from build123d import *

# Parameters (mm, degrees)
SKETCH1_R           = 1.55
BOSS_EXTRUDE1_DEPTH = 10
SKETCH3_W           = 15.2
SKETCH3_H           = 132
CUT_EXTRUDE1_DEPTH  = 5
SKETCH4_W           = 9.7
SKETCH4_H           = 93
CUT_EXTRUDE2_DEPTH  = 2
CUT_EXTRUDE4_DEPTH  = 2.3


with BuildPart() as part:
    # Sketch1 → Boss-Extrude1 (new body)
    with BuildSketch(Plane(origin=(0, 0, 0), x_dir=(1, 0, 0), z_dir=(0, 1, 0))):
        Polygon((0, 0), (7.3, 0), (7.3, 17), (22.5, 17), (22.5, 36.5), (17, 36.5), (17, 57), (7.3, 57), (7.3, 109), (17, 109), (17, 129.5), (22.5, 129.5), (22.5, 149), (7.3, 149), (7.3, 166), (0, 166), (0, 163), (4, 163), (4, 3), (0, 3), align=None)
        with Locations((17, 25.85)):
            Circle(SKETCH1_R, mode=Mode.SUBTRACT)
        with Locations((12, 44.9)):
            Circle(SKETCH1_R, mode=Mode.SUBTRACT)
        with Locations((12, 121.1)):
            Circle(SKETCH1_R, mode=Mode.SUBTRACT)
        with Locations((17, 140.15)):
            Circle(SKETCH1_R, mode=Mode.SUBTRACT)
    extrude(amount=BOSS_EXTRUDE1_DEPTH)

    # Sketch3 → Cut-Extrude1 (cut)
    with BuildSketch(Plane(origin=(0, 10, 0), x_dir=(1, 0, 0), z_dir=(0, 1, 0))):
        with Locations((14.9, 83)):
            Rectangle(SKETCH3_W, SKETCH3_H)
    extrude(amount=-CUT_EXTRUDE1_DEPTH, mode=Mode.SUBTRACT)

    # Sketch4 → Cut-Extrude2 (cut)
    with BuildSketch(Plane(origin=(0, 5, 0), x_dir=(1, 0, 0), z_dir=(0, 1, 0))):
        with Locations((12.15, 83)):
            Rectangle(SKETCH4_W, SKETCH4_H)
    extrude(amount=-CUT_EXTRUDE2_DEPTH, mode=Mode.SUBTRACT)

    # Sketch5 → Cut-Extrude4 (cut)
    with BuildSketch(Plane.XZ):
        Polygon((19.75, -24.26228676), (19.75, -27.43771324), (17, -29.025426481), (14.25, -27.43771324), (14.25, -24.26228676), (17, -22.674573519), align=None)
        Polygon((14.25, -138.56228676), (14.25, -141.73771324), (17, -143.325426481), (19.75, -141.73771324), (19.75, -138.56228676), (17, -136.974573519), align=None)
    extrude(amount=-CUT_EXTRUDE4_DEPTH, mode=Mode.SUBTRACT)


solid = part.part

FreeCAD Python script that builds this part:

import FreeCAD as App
import Part
import Sketcher
from FreeCAD import Vector
Q = App.Units.Quantity

doc = App.newDocument("Part")
body = doc.addObject("PartDesign::Body", "Body")

# Sketch on XZ plane
sketch1 = doc.addObject("Sketcher::SketchObject", "Sketch")
body.addObject(sketch1)
sketch1.AttachmentSupport = (doc.XZ_Plane, [""])
sketch1.MapMode = "FlatFace"
sketch1.addGeometry([
    Part.LineSegment(Vector(0, 0, 0), Vector(7.3, 0, 0)),  # 0
    Part.LineSegment(Vector(7.3, 0, 0), Vector(7.3, -17, 0)),  # 1
    Part.LineSegment(Vector(7.3, -17, 0), Vector(22.5, -17, 0)),  # 2
    Part.LineSegment(Vector(22.5, -17, 0), Vector(22.5, -36.5, 0)),  # 3
    Part.LineSegment(Vector(22.5, -36.5, 0), Vector(17, -36.5, 0)),  # 4
    Part.LineSegment(Vector(17, -36.5, 0), Vector(17, -57, 0)),  # 5
    Part.LineSegment(Vector(17, -57, 0), Vector(7.3, -57, 0)),  # 6
    Part.LineSegment(Vector(7.3, -57, 0), Vector(7.3, -109, 0)),  # 7
    Part.LineSegment(Vector(7.3, -109, 0), Vector(17, -109, 0)),  # 8
    Part.LineSegment(Vector(17, -109, 0), Vector(17, -129.5, 0)),  # 9
    Part.LineSegment(Vector(17, -129.5, 0), Vector(22.5, -129.5, 0)),  # 10
    Part.LineSegment(Vector(22.5, -129.5, 0), Vector(22.5, -149, 0)),  # 11
    Part.LineSegment(Vector(22.5, -149, 0), Vector(7.3, -149, 0)),  # 12
    Part.LineSegment(Vector(7.3, -149, 0), Vector(7.3, -166, 0)),  # 13
    Part.LineSegment(Vector(7.3, -166, 0), Vector(0, -166, 0)),  # 14
    Part.LineSegment(Vector(0, -166, 0), Vector(0, -163, 0)),  # 15
    Part.LineSegment(Vector(0, -163, 0), Vector(4, -163, 0)),  # 16
    Part.LineSegment(Vector(4, -163, 0), Vector(4, -3, 0)),  # 17
    Part.LineSegment(Vector(4, -3, 0), Vector(0, -3, 0)),  # 18
    Part.LineSegment(Vector(0, -3, 0), Vector(0, 0, 0)),  # 19
    Part.Circle(Vector(12, -44.9, 0), Vector(0, 0, 1), 1.55),  # 20
    Part.Circle(Vector(17, -25.85, 0), Vector(0, 0, 1), 1.55),  # 21
    Part.Circle(Vector(12, -121.1, 0), Vector(0, 0, 1), 1.55),  # 22
    Part.Circle(Vector(17, -140.15, 0), Vector(0, 0, 1), 1.55),  # 23
], False)
sketch1.addConstraint([
    Sketcher.Constraint("Coincident", 0, 2, 1, 1),
    Sketcher.Constraint("Coincident", 1, 2, 2, 1),
    Sketcher.Constraint("Coincident", 2, 2, 3, 1),
    Sketcher.Constraint("Coincident", 3, 2, 4, 1),
    Sketcher.Constraint("Coincident", 4, 2, 5, 1),
    Sketcher.Constraint("Coincident", 5, 2, 6, 1),
    Sketcher.Constraint("Coincident", 6, 2, 7, 1),
    Sketcher.Constraint("Coincident", 7, 2, 8, 1),
    Sketcher.Constraint("Coincident", 8, 2, 9, 1),
    Sketcher.Constraint("Coincident", 9, 2, 10, 1),
    Sketcher.Constraint("Coincident", 10, 2, 11, 1),
    Sketcher.Constraint("Coincident", 11, 2, 12, 1),
    Sketcher.Constraint("Coincident", 12, 2, 13, 1),
    Sketcher.Constraint("Coincident", 13, 2, 14, 1),
    Sketcher.Constraint("Coincident", 14, 2, 15, 1),
    Sketcher.Constraint("Coincident", 15, 2, 16, 1),
    Sketcher.Constraint("Coincident", 16, 2, 17, 1),
    Sketcher.Constraint("Coincident", 17, 2, 18, 1),
    Sketcher.Constraint("Coincident", 18, 2, 19, 1),
    Sketcher.Constraint("Coincident", 19, 2, 0, 1),
    Sketcher.Constraint("Horizontal", 0),
    Sketcher.Constraint("Vertical", 1),
    Sketcher.Constraint("Horizontal", 2),
    Sketcher.Constraint("Vertical", 3),
    Sketcher.Constraint("Horizontal", 4),
    Sketcher.Constraint("Vertical", 5),
    Sketcher.Constraint("Horizontal", 6),
    Sketcher.Constraint("Vertical", 7),
    Sketcher.Constraint("Horizontal", 8),
    Sketcher.Constraint("Vertical", 9),
    Sketcher.Constraint("Horizontal", 10),
    Sketcher.Constraint("Vertical", 11),
    Sketcher.Constraint("Horizontal", 12),
    Sketcher.Constraint("Vertical", 13),
    Sketcher.Constraint("Horizontal", 14),
    Sketcher.Constraint("Vertical", 15),
    Sketcher.Constraint("Horizontal", 16),
    Sketcher.Constraint("Vertical", 17),
    Sketcher.Constraint("Horizontal", 18),
    Sketcher.Constraint("Vertical", 19),
    Sketcher.Constraint("Coincident", 19, 2, -1, 1),
    Sketcher.Constraint("Equal", 20, 21),
    Sketcher.Constraint("Equal", 21, 22),
    Sketcher.Constraint("Equal", 22, 23),
    Sketcher.Constraint("PointOnObject", 14, 2, -2),
    Sketcher.Constraint("Vertical", 20, 3, 22, 3),
    Sketcher.Constraint("Vertical", 21, 3, 23, 3),
    Sketcher.Constraint("Vertical", 23, 3, 4, 2),
    Sketcher.Constraint("Vertical", 1, 2, 6, 2),
    Sketcher.Constraint("Vertical", 5, 2, 8, 2),
    Sketcher.Constraint("Vertical", 3, 2, 10, 2),
    Sketcher.Constraint("Vertical", 7, 2, 12, 2),
    Sketcher.Constraint("Equal", 5, 9),
    Sketcher.Constraint("Equal", 3, 11),
    Sketcher.Constraint("Equal", 1, 13),
    Sketcher.Constraint("Equal", 15, 19),
    Sketcher.Constraint("Diameter", 20, Q("3.1 mm")),
    Sketcher.Constraint("DistanceX", 16, 1, 16, 2, Q("4 mm")),
    Sketcher.Constraint("DistanceY", 1, 2, 1, 1, Q("17 mm")),
    Sketcher.Constraint("DistanceY", 7, 2, 7, 1, Q("52 mm")),
    Sketcher.Constraint("DistanceY", 15, 1, 15, 2, Q("3 mm")),
    Sketcher.Constraint("DistanceY", 17, 1, 17, 2, Q("160 mm")),
    Sketcher.Constraint("DistanceX", 0, 1, 0, 2, Q("7.3 mm")),
    Sketcher.Constraint("DistanceX", 2, 1, 2, 2, Q("15.2 mm")),
    Sketcher.Constraint("DistanceX", 4, 2, 4, 1, Q("5.5 mm")),
    Sketcher.Constraint("DistanceY", 3, 2, 3, 1, Q("19.5 mm")),
    Sketcher.Constraint("DistanceX", -1, 1, 20, 3, Q("12 mm")),
    Sketcher.Constraint("DistanceY", 20, 3, -1, 1, Q("44.9 mm")),
    Sketcher.Constraint("DistanceY", 22, 3, -1, 1, Q("121.1 mm")),
    Sketcher.Constraint("DistanceY", 23, 3, 21, 3, Q("114.3 mm")),
    Sketcher.Constraint("DistanceY", 21, 3, -1, 1, Q("25.85 mm")),
])
pad1 = doc.addObject("PartDesign::Pad", "Pad")
body.addObject(pad1)
pad1.Profile = sketch1
pad1.Length = 10
pad1.Reversed = True

# Sketch on XZ plane
sketch2 = doc.addObject("Sketcher::SketchObject", "Sketch001")
body.addObject(sketch2)
sketch2.AttachmentSupport = (doc.XZ_Plane, [""])
sketch2.MapMode = "FlatFace"
sketch2.AttachmentOffset = App.Placement(Vector(0, 0, -10), App.Rotation())
sketch2.addGeometry([
    Part.LineSegment(Vector(7.3, -149, 0), Vector(7.3, -17, 0)),
    Part.LineSegment(Vector(7.3, -17, 0), Vector(22.5, -17, 0)),
    Part.LineSegment(Vector(22.5, -17, 0), Vector(22.5, -149, 0)),
    Part.LineSegment(Vector(22.5, -149, 0), Vector(7.3, -149, 0)),
], False)
sketch2.addConstraint([
    Sketcher.Constraint("Coincident", 0, 2, 1, 1),
    Sketcher.Constraint("Coincident", 1, 2, 2, 1),
    Sketcher.Constraint("Coincident", 2, 2, 3, 1),
    Sketcher.Constraint("Coincident", 3, 2, 0, 1),
    Sketcher.Constraint("Vertical", 0),
    Sketcher.Constraint("Horizontal", 1),
    Sketcher.Constraint("Vertical", 2),
    Sketcher.Constraint("Horizontal", 3),
    Sketcher.Constraint("DistanceY", 0, 1, 0, 2, Q("132 mm")),
    Sketcher.Constraint("DistanceX", 1, 1, 1, 2, Q("15.2 mm")),
    Sketcher.Constraint("DistanceY", 0, 2, -1, 1, Q("17 mm")),
    Sketcher.Constraint("DistanceX", -1, 1, 0, 2, Q("7.3 mm")),
])
pocket1 = doc.addObject("PartDesign::Pocket", "Pocket")
body.addObject(pocket1)
pocket1.Profile = sketch2
pocket1.Length = 5
pocket1.Reversed = True

# Sketch on XZ plane
sketch3 = doc.addObject("Sketcher::SketchObject", "Sketch002")
body.addObject(sketch3)
sketch3.AttachmentSupport = (doc.XZ_Plane, [""])
sketch3.MapMode = "FlatFace"
sketch3.AttachmentOffset = App.Placement(Vector(0, 0, -5), App.Rotation())
sketch3.addGeometry([
    Part.LineSegment(Vector(7.3, -129.5, 0), Vector(7.3, -36.5, 0)),
    Part.LineSegment(Vector(7.3, -36.5, 0), Vector(17, -36.5, 0)),
    Part.LineSegment(Vector(17, -36.5, 0), Vector(17, -129.5, 0)),
    Part.LineSegment(Vector(17, -129.5, 0), Vector(7.3, -129.5, 0)),
], False)
sketch3.addConstraint([
    Sketcher.Constraint("Coincident", 0, 2, 1, 1),
    Sketcher.Constraint("Coincident", 1, 2, 2, 1),
    Sketcher.Constraint("Coincident", 2, 2, 3, 1),
    Sketcher.Constraint("Coincident", 3, 2, 0, 1),
    Sketcher.Constraint("Vertical", 0),
    Sketcher.Constraint("Horizontal", 1),
    Sketcher.Constraint("Vertical", 2),
    Sketcher.Constraint("Horizontal", 3),
    Sketcher.Constraint("DistanceY", 0, 1, 0, 2, Q("93 mm")),
    Sketcher.Constraint("DistanceX", 1, 1, 1, 2, Q("9.7 mm")),
    Sketcher.Constraint("DistanceX", -1, 1, 1, 2, Q("17 mm")),
    Sketcher.Constraint("DistanceY", 0, 2, -1, 1, Q("36.5 mm")),
])
pocket2 = doc.addObject("PartDesign::Pocket", "Pocket001")
body.addObject(pocket2)
pocket2.Profile = sketch3
pocket2.Length = 2
pocket2.Reversed = True

# Sketch on XZ plane
sketch4 = doc.addObject("Sketcher::SketchObject", "Sketch003")
body.addObject(sketch4)
sketch4.AttachmentSupport = (doc.XZ_Plane, [""])
sketch4.MapMode = "FlatFace"
sketch4.addGeometry([
    Part.LineSegment(Vector(19.75, -27.437713, 0), Vector(19.75, -24.262287, 0)),  # 0
    Part.LineSegment(Vector(19.75, -24.262287, 0), Vector(17, -22.674574, 0)),  # 1
    Part.LineSegment(Vector(17, -22.674574, 0), Vector(14.25, -24.262287, 0)),  # 2
    Part.LineSegment(Vector(14.25, -24.262287, 0), Vector(14.25, -27.437713, 0)),  # 3
    Part.LineSegment(Vector(14.25, -27.437713, 0), Vector(17, -29.025426, 0)),  # 4
    Part.LineSegment(Vector(17, -29.025426, 0), Vector(19.75, -27.437713, 0)),  # 5
    Part.LineSegment(Vector(14.25, -138.562287, 0), Vector(14.25, -141.737713, 0)),  # 6
    Part.LineSegment(Vector(14.25, -141.737713, 0), Vector(17, -143.325426, 0)),  # 7
    Part.LineSegment(Vector(17, -143.325426, 0), Vector(19.75, -141.737713, 0)),  # 8
    Part.LineSegment(Vector(19.75, -141.737713, 0), Vector(19.75, -138.562287, 0)),  # 9
    Part.LineSegment(Vector(19.75, -138.562287, 0), Vector(17, -136.974574, 0)),  # 10
    Part.LineSegment(Vector(17, -136.974574, 0), Vector(14.25, -138.562287, 0)),  # 11
], False)
sketch4.addConstraint([
    Sketcher.Constraint("Coincident", 0, 2, 1, 1),
    Sketcher.Constraint("Coincident", 1, 2, 2, 1),
    Sketcher.Constraint("Coincident", 2, 2, 3, 1),
    Sketcher.Constraint("Coincident", 3, 2, 4, 1),
    Sketcher.Constraint("Coincident", 4, 2, 5, 1),
    Sketcher.Constraint("Coincident", 5, 2, 0, 1),
    Sketcher.Constraint("Coincident", 6, 2, 7, 1),
    Sketcher.Constraint("Coincident", 7, 2, 8, 1),
    Sketcher.Constraint("Coincident", 8, 2, 9, 1),
    Sketcher.Constraint("Coincident", 9, 2, 10, 1),
    Sketcher.Constraint("Coincident", 10, 2, 11, 1),
    Sketcher.Constraint("Coincident", 11, 2, 6, 1),
    Sketcher.Constraint("Vertical", 0),
    Sketcher.Constraint("Vertical", 3),
    Sketcher.Constraint("Vertical", 6),
    Sketcher.Constraint("Vertical", 9),
    Sketcher.Constraint("Parallel", 1, 4),
    Sketcher.Constraint("Parallel", 2, 5),
    Sketcher.Constraint("Parallel", 4, 7),
    Sketcher.Constraint("Parallel", 5, 8),
    Sketcher.Constraint("Parallel", 7, 10),
    Sketcher.Constraint("Parallel", 8, 11),
    Sketcher.Constraint("Horizontal", 0, 2, 2, 2),
    Sketcher.Constraint("Horizontal", 3, 2, 5, 2),
    Sketcher.Constraint("Horizontal", 6, 2, 8, 2),
    Sketcher.Constraint("Horizontal", 9, 2, 11, 2),
    Sketcher.Constraint("Vertical", 1, 2, 4, 2),
    Sketcher.Constraint("Vertical", 3, 2, 6, 2),
    Sketcher.Constraint("Vertical", 4, 2, 7, 2),
    Sketcher.Constraint("Equal", 3, 6),
    Sketcher.Constraint("Angle", 1, Q("150 deg")),
    Sketcher.Constraint("DistanceX", -1, 1, 1, 2, Q("17 mm")),
    Sketcher.Constraint("DistanceX", 2, 2, 0, 2, Q("5.5 mm")),
    Sketcher.Constraint("DistanceY", 6, 2, 3, 2, Q("114.3 mm")),
    Sketcher.Constraint("DistanceY", 0, 1, 0, 2, Q("3.175426 mm")),
    Sketcher.Constraint("DistanceY", 0, 2, -1, 1, Q("24.262287 mm")),
])
pocket3 = doc.addObject("PartDesign::Pocket", "Pocket002")
body.addObject(pocket3)
pocket3.Profile = sketch4
pocket3.Length = 2.3

doc.recompute()
